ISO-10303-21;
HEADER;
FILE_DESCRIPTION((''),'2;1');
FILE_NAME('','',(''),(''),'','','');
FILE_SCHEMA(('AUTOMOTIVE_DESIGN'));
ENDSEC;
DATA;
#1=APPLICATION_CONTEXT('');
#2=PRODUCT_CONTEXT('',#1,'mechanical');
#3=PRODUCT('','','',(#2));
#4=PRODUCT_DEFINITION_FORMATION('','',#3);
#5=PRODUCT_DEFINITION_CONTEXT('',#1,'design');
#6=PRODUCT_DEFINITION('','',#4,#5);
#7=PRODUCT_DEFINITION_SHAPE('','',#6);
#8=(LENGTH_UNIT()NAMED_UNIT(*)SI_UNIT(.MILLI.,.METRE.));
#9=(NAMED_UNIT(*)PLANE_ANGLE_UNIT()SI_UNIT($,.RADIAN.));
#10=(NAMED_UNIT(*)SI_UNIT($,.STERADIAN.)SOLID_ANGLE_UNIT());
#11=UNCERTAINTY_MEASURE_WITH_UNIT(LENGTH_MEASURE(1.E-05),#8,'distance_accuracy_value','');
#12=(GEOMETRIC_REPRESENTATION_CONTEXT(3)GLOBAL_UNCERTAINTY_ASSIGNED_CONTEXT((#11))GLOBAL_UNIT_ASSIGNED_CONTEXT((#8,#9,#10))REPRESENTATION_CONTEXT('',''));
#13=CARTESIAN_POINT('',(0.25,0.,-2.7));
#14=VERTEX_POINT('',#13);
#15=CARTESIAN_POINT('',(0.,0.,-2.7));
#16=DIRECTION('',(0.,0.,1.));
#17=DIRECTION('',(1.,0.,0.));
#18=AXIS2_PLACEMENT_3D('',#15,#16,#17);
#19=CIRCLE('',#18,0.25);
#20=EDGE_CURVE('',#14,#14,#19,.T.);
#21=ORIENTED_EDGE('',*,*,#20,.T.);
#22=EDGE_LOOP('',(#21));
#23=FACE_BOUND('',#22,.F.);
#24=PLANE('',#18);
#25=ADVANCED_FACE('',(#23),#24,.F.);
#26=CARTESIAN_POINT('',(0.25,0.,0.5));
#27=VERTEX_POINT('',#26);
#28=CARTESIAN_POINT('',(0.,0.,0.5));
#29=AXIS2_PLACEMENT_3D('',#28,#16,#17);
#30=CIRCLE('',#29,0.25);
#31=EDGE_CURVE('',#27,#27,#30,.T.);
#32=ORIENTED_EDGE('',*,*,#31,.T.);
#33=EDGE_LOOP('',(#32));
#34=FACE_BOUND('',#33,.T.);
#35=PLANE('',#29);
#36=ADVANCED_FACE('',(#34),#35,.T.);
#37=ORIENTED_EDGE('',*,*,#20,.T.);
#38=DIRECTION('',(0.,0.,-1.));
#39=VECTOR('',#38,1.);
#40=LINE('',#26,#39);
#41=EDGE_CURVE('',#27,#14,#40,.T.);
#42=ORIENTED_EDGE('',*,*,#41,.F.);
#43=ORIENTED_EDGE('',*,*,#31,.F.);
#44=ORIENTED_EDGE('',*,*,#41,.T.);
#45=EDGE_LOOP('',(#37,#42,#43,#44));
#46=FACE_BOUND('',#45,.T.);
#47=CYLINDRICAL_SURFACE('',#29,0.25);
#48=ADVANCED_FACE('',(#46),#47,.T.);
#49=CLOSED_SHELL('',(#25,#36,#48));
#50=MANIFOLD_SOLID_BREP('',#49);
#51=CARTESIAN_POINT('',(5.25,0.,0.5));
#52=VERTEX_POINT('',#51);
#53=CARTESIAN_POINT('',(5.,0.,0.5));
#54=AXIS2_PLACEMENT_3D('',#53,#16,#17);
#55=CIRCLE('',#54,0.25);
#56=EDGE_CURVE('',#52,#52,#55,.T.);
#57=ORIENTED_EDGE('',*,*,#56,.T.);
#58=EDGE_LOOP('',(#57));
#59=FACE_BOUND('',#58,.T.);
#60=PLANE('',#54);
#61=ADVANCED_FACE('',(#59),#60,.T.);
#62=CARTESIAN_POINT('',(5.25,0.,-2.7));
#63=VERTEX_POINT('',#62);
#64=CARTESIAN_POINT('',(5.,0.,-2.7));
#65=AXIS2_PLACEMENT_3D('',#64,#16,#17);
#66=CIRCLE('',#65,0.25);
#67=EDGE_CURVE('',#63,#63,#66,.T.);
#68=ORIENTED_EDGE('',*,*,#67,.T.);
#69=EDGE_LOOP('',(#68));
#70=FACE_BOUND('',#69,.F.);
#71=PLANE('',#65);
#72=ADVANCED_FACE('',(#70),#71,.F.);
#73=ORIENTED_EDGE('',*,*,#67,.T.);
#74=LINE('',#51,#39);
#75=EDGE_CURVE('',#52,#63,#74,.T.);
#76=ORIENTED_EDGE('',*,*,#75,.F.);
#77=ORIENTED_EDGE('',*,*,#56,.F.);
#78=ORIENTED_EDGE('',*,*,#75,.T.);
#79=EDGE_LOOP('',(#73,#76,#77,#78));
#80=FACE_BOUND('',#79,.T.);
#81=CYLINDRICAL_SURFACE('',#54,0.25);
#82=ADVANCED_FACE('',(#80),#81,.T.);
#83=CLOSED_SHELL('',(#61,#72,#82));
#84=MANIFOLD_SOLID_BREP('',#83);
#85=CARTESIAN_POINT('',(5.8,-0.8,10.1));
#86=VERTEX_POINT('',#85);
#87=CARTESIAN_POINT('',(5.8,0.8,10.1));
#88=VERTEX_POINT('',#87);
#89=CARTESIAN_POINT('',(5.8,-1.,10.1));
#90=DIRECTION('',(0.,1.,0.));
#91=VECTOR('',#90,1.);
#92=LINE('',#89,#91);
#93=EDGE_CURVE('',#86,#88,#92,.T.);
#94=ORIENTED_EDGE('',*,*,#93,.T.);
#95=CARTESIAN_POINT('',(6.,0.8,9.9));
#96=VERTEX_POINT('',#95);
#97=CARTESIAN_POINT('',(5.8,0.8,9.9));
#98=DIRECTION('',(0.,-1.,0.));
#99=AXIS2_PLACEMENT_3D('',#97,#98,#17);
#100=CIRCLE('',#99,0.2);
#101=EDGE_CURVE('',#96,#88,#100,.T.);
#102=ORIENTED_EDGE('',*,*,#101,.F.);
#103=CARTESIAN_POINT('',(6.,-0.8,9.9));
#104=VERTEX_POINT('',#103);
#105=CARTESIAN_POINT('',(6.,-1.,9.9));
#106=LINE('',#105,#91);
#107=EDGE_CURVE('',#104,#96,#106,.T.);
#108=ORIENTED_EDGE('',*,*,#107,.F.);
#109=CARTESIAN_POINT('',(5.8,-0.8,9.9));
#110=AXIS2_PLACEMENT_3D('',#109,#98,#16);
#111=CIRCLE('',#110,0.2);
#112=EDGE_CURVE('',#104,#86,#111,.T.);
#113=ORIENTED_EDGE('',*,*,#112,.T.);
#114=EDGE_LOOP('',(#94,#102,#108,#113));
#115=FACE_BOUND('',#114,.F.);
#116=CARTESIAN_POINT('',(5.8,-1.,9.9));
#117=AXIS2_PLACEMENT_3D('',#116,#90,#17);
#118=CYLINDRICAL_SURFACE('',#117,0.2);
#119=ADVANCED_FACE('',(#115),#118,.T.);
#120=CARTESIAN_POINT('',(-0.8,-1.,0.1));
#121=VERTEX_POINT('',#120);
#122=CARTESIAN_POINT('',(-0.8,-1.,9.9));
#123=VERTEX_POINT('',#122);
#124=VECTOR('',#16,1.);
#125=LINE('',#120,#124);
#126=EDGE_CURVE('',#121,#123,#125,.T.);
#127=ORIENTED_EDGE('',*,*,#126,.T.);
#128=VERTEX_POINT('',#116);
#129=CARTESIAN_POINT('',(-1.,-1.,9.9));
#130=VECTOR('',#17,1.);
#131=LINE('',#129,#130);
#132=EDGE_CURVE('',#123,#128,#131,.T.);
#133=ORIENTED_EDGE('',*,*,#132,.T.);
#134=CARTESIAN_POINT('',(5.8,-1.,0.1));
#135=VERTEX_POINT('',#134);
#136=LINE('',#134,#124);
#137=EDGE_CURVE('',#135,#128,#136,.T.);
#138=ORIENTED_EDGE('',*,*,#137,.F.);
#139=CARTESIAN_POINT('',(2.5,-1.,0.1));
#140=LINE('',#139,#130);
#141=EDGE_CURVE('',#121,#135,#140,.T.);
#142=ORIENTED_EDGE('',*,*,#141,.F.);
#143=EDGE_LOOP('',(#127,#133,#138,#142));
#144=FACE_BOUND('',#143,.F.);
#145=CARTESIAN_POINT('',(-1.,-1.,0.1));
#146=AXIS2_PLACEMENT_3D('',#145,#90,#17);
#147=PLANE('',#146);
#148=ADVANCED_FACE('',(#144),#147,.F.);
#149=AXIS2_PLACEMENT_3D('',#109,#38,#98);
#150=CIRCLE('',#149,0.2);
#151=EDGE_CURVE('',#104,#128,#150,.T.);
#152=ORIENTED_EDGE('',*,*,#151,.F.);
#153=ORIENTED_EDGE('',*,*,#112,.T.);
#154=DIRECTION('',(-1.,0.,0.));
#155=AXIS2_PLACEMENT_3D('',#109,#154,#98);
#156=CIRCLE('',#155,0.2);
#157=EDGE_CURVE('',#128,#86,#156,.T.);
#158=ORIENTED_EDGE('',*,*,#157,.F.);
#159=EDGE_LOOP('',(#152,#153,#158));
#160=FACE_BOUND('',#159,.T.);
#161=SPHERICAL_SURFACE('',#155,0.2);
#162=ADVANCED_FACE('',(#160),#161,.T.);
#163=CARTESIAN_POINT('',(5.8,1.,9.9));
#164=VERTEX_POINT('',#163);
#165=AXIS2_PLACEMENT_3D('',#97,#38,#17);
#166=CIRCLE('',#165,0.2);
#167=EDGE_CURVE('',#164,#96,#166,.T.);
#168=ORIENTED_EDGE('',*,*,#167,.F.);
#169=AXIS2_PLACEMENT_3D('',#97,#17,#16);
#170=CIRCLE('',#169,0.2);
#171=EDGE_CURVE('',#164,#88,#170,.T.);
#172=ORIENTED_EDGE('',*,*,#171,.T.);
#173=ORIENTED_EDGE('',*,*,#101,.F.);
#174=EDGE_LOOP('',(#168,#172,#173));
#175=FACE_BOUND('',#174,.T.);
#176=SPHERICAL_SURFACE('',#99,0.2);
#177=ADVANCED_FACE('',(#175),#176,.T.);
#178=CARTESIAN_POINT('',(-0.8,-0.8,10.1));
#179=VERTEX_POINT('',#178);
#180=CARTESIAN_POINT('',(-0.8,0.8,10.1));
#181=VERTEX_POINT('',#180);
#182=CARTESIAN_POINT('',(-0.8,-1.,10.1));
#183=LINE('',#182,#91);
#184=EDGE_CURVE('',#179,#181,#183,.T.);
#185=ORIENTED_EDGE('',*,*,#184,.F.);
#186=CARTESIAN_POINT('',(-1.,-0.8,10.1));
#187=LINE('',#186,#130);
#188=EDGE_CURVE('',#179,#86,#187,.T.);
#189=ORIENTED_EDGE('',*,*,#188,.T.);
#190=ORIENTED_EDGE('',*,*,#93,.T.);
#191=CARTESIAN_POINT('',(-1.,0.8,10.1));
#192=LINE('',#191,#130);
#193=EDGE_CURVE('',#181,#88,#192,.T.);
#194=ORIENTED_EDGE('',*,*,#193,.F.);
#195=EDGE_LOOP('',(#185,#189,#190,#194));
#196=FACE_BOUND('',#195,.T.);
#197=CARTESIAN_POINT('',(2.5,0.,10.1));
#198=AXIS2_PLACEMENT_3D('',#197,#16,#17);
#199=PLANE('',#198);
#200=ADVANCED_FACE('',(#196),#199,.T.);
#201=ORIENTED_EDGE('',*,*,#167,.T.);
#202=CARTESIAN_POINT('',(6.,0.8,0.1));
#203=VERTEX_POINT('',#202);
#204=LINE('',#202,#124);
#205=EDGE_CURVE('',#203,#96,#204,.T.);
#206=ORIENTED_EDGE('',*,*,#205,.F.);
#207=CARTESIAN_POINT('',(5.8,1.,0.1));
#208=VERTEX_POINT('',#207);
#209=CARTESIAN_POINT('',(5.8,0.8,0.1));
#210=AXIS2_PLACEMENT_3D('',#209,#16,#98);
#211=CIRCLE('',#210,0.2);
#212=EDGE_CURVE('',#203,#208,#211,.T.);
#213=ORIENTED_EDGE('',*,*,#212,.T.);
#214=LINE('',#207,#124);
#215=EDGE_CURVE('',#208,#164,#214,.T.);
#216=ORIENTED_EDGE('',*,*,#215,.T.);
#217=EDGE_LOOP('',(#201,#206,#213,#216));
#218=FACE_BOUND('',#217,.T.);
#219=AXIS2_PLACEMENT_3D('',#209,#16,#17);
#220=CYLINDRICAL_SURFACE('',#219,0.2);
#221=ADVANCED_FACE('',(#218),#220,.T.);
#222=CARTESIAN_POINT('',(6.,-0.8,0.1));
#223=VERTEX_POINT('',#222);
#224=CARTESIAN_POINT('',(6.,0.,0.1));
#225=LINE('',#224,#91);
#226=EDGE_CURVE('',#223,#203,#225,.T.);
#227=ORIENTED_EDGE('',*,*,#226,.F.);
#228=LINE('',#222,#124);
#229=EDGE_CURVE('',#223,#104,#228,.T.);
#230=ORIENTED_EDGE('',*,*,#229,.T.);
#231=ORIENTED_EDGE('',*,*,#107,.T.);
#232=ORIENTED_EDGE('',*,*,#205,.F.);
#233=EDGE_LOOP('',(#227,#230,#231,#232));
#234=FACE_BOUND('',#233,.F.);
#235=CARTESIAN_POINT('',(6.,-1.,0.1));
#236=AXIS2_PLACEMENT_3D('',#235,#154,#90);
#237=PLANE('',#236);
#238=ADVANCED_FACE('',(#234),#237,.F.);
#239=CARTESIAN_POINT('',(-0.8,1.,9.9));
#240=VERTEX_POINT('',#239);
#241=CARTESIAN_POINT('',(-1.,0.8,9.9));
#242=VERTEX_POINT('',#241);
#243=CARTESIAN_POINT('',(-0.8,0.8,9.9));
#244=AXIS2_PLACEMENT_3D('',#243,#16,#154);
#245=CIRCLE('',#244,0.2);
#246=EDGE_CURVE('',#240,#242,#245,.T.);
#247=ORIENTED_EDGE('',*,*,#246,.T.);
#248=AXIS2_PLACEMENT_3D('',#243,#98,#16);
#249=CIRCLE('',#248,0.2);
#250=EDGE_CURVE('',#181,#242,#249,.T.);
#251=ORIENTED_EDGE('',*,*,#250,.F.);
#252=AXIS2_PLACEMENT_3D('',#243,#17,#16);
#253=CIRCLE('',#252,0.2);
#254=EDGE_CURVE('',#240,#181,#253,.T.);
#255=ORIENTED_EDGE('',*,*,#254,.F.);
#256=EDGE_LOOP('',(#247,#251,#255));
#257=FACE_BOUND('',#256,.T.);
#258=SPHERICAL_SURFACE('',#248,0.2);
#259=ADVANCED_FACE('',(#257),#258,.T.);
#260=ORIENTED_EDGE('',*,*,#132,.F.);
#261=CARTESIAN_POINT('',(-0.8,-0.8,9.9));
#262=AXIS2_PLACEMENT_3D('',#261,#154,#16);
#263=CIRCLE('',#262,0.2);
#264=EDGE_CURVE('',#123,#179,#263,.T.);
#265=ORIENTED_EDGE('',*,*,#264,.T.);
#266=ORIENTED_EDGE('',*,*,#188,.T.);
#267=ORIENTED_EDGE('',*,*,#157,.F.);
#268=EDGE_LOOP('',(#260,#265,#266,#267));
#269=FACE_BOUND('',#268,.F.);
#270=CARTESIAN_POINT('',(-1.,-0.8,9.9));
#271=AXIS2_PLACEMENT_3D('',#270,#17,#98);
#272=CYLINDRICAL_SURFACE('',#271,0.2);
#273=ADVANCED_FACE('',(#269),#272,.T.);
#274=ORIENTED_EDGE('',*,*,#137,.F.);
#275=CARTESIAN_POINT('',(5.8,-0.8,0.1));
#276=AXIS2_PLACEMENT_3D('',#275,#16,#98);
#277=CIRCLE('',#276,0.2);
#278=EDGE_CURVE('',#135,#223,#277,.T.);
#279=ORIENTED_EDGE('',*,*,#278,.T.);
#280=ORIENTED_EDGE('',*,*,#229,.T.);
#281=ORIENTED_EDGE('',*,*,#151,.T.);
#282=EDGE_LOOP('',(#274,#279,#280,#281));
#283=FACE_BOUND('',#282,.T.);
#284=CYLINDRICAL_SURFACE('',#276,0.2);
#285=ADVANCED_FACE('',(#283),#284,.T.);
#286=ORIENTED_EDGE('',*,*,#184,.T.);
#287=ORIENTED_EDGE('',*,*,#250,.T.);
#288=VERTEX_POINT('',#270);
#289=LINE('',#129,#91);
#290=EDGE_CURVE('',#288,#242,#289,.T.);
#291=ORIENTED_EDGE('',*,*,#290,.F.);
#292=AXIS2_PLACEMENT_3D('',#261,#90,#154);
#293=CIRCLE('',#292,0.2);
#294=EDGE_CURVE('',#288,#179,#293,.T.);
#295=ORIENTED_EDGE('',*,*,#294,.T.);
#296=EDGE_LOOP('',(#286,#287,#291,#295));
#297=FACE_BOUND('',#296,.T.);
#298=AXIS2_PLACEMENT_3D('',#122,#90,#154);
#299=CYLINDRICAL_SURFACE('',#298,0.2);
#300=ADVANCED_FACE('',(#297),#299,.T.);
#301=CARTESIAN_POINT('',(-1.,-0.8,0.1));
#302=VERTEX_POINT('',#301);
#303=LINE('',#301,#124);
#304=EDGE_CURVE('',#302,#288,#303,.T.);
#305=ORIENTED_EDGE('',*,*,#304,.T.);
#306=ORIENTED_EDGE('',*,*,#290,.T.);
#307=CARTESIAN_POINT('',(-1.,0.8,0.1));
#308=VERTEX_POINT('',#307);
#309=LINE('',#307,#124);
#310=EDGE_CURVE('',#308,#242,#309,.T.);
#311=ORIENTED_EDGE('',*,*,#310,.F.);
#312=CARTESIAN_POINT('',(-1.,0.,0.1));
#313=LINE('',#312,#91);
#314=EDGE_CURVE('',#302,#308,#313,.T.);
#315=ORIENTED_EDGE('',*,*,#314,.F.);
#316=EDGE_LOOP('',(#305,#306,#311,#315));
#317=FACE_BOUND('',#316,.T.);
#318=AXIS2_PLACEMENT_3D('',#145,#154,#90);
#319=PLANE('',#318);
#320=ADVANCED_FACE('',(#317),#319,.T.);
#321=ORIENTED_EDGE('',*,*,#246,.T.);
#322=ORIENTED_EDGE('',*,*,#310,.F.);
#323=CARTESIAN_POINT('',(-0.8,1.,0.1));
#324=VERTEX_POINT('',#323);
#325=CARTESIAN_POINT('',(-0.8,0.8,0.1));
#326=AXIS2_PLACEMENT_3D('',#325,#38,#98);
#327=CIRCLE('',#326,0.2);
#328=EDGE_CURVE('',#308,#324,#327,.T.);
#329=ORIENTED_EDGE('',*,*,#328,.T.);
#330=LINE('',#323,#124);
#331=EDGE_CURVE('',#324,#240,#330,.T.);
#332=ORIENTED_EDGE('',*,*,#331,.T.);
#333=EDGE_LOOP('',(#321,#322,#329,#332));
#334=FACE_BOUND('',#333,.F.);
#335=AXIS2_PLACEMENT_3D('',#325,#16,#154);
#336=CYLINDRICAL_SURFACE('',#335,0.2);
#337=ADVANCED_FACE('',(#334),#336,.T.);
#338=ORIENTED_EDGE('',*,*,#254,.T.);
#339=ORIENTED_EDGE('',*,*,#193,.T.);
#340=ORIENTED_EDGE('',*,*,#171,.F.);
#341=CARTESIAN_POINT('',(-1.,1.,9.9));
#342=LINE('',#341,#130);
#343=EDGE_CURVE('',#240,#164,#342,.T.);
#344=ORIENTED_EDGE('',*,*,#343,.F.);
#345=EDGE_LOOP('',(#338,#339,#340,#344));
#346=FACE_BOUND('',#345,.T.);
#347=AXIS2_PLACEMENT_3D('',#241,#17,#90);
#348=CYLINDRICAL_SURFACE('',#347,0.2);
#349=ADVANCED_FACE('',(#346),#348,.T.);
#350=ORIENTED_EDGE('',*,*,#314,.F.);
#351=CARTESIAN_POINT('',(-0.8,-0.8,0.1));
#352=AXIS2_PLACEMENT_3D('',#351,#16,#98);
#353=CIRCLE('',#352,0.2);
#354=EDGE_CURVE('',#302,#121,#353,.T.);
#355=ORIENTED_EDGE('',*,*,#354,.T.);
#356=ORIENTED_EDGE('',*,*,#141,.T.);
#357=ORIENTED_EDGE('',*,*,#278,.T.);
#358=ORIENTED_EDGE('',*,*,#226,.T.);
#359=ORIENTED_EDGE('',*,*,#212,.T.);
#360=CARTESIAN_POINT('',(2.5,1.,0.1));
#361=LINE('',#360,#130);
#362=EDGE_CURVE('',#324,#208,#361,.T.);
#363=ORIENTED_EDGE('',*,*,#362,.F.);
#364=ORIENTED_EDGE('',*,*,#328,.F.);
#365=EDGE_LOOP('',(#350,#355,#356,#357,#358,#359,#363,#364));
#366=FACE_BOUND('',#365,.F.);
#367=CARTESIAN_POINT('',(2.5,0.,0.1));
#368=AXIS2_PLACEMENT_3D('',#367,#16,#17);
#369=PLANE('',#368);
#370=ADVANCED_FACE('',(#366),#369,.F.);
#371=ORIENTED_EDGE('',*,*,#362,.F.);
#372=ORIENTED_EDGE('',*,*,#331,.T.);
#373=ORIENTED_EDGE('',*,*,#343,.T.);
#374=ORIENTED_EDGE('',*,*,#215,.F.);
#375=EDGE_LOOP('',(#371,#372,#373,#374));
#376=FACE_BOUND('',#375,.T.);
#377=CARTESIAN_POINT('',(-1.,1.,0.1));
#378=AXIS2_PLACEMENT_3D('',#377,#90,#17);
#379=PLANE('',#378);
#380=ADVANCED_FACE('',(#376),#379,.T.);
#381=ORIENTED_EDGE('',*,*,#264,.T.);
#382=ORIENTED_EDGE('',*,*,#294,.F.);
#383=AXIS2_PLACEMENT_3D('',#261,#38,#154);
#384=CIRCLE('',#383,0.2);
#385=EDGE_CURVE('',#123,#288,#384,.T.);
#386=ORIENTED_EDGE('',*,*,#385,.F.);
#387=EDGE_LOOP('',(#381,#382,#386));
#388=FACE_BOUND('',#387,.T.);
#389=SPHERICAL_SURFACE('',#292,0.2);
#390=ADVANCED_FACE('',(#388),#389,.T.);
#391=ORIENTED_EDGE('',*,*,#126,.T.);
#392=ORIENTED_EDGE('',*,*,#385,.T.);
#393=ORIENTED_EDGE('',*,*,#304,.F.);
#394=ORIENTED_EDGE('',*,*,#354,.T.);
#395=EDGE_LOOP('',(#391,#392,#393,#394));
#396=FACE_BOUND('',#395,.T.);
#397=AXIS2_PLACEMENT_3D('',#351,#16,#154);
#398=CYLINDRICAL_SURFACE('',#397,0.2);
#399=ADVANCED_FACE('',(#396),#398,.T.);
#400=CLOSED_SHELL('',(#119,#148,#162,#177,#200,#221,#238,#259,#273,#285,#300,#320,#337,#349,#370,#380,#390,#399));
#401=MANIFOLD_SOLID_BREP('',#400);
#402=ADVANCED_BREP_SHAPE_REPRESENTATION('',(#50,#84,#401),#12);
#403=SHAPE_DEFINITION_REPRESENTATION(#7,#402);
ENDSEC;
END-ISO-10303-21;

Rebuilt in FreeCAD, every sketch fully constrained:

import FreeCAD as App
import Part
import Sketcher


def edges_at(feature, points):
    """Names of the edges that pass closest to the given points."""
    edges = feature.Shape.Edges
    near = lambda p: min(range(len(edges)), key=lambda i: edges[i].distToShape(Part.Vertex(*p))[0])
    return sorted({f"Edge{near(p) + 1}" for p in points})

doc = App.newDocument("Part")
params = doc.addObject("Spreadsheet::Sheet", "Params")
for row, (alias, value) in enumerate([
    ("sketch1_width", "7 mm"),
    ("sketch1_height", "2 mm"),
    ("pad1_length", "10 mm"),
    ("fillet_radius", "0.2 mm"),
    ("sketch2_diameter", "0.5 mm"),
    ("pad2_length", "3.2 mm"),
], start=1):
    params.set(f"A{row}", alias)
    params.set(f"B{row}", "=" + value)
    params.setAlias(f"B{row}", alias)

body = doc.addObject("PartDesign::Body", "Body")

sketch1 = doc.addObject("Sketcher::SketchObject", "Sketch")
body.addObject(sketch1)
sketch1.AttachmentSupport = (doc.XY_Plane, [""])
sketch1.MapMode = "FlatFace"
sketch1.AttachmentOffset = App.Placement(App.Vector(0, 0, 0.1), App.Rotation())
sketch1.addGeometry(Part.LineSegment(App.Vector(-1, 1, 0), App.Vector(-1, -1, 0)), False)
sketch1.addGeometry(Part.LineSegment(App.Vector(-1, -1, 0), App.Vector(6, -1, 0)), False)
sketch1.addGeometry(Part.LineSegment(App.Vector(6, -1, 0), App.Vector(6, 1, 0)), False)
sketch1.addGeometry(Part.LineSegment(App.Vector(6, 1, 0), App.Vector(-1, 1, 0)), False)
sketch1.addConstraint(Sketcher.Constraint("Coincident", 0, 2, 1, 1))
sketch1.addConstraint(Sketcher.Constraint("Coincident", 1, 2, 2, 1))
sketch1.addConstraint(Sketcher.Constraint("Coincident", 2, 2, 3, 1))
sketch1.addConstraint(Sketcher.Constraint("Coincident", 3, 2, 0, 1))
sketch1.addConstraint(Sketcher.Constraint("Vertical", 0))
sketch1.addConstraint(Sketcher.Constraint("Horizontal", 1))
sketch1.addConstraint(Sketcher.Constraint("Vertical", 2))
sketch1.addConstraint(Sketcher.Constraint("Horizontal", 3))
sketch1.addConstraint(Sketcher.Constraint("DistanceX", 1, 1, 1, 2, 7.0))
sketch1.addConstraint(Sketcher.Constraint("DistanceY", 0, 2, 0, 1, 2.0))
sketch1.addConstraint(Sketcher.Constraint("DistanceX", 0, 2, -1, 1, 1.0))
sketch1.addConstraint(Sketcher.Constraint("DistanceY", 0, 2, -1, 1, 1.0))
sketch1.setExpression("Constraints[8]", "Params.sketch1_width")
sketch1.setExpression("Constraints[9]", "Params.sketch1_height")
pad1 = doc.addObject("PartDesign::Pad", "Pad")
body.addObject(pad1)
pad1.Profile = sketch1
pad1.setExpression("Length", "Params.pad1_length")
doc.recompute()

fillet = doc.addObject("PartDesign::Fillet", "Fillet")
body.addObject(fillet)
fillet.Base = (pad1, edges_at(pad1, [
    (-1, 0, 10.1),
    (-1, -1, 5.1),
    (2.5, -1, 10.1),
    (6, -1, 5.1),
    (6, 0, 10.1),
    (6, 1, 5.1),
    (2.5, 1, 10.1),
    (-1, 1, 5.1),
]))
fillet.setExpression("Radius", "Params.fillet_radius")
body2 = doc.addObject("PartDesign::Body", "Body001")
body2.AllowCompound = True

sketch2 = doc.addObject("Sketcher::SketchObject", "Sketch001")
body2.addObject(sketch2)
sketch2.AttachmentSupport = (doc.getObject("XY_Plane001"), [""])
sketch2.MapMode = "FlatFace"
sketch2.AttachmentOffset = App.Placement(App.Vector(0, 0, 0.5), App.Rotation())
sketch2.addGeometry(Part.Circle(App.Vector(0, 0, 0), App.Vector(0, 0, 1), 0.25), False)
sketch2.addGeometry(Part.Circle(App.Vector(5, 0, 0), App.Vector(0, 0, 1), 0.25), False)
sketch2.addConstraint(Sketcher.Constraint("Coincident", 0, 3, -1, 1))
sketch2.addConstraint(Sketcher.Constraint("Equal", 0, 1))
sketch2.addConstraint(Sketcher.Constraint("PointOnObject", 1, 3, -1))
sketch2.addConstraint(Sketcher.Constraint("Diameter", 0, 0.5))
sketch2.addConstraint(Sketcher.Constraint("DistanceX", -1, 1, 1, 3, 5.0))
sketch2.setExpression("Constraints[3]", "Params.sketch2_diameter")
pad2 = doc.addObject("PartDesign::Pad", "Pad001")
body2.addObject(pad2)
pad2.Profile = sketch2
pad2.setExpression("Length", "Params.pad2_length")
pad2.Reversed = True

doc.recompute()
